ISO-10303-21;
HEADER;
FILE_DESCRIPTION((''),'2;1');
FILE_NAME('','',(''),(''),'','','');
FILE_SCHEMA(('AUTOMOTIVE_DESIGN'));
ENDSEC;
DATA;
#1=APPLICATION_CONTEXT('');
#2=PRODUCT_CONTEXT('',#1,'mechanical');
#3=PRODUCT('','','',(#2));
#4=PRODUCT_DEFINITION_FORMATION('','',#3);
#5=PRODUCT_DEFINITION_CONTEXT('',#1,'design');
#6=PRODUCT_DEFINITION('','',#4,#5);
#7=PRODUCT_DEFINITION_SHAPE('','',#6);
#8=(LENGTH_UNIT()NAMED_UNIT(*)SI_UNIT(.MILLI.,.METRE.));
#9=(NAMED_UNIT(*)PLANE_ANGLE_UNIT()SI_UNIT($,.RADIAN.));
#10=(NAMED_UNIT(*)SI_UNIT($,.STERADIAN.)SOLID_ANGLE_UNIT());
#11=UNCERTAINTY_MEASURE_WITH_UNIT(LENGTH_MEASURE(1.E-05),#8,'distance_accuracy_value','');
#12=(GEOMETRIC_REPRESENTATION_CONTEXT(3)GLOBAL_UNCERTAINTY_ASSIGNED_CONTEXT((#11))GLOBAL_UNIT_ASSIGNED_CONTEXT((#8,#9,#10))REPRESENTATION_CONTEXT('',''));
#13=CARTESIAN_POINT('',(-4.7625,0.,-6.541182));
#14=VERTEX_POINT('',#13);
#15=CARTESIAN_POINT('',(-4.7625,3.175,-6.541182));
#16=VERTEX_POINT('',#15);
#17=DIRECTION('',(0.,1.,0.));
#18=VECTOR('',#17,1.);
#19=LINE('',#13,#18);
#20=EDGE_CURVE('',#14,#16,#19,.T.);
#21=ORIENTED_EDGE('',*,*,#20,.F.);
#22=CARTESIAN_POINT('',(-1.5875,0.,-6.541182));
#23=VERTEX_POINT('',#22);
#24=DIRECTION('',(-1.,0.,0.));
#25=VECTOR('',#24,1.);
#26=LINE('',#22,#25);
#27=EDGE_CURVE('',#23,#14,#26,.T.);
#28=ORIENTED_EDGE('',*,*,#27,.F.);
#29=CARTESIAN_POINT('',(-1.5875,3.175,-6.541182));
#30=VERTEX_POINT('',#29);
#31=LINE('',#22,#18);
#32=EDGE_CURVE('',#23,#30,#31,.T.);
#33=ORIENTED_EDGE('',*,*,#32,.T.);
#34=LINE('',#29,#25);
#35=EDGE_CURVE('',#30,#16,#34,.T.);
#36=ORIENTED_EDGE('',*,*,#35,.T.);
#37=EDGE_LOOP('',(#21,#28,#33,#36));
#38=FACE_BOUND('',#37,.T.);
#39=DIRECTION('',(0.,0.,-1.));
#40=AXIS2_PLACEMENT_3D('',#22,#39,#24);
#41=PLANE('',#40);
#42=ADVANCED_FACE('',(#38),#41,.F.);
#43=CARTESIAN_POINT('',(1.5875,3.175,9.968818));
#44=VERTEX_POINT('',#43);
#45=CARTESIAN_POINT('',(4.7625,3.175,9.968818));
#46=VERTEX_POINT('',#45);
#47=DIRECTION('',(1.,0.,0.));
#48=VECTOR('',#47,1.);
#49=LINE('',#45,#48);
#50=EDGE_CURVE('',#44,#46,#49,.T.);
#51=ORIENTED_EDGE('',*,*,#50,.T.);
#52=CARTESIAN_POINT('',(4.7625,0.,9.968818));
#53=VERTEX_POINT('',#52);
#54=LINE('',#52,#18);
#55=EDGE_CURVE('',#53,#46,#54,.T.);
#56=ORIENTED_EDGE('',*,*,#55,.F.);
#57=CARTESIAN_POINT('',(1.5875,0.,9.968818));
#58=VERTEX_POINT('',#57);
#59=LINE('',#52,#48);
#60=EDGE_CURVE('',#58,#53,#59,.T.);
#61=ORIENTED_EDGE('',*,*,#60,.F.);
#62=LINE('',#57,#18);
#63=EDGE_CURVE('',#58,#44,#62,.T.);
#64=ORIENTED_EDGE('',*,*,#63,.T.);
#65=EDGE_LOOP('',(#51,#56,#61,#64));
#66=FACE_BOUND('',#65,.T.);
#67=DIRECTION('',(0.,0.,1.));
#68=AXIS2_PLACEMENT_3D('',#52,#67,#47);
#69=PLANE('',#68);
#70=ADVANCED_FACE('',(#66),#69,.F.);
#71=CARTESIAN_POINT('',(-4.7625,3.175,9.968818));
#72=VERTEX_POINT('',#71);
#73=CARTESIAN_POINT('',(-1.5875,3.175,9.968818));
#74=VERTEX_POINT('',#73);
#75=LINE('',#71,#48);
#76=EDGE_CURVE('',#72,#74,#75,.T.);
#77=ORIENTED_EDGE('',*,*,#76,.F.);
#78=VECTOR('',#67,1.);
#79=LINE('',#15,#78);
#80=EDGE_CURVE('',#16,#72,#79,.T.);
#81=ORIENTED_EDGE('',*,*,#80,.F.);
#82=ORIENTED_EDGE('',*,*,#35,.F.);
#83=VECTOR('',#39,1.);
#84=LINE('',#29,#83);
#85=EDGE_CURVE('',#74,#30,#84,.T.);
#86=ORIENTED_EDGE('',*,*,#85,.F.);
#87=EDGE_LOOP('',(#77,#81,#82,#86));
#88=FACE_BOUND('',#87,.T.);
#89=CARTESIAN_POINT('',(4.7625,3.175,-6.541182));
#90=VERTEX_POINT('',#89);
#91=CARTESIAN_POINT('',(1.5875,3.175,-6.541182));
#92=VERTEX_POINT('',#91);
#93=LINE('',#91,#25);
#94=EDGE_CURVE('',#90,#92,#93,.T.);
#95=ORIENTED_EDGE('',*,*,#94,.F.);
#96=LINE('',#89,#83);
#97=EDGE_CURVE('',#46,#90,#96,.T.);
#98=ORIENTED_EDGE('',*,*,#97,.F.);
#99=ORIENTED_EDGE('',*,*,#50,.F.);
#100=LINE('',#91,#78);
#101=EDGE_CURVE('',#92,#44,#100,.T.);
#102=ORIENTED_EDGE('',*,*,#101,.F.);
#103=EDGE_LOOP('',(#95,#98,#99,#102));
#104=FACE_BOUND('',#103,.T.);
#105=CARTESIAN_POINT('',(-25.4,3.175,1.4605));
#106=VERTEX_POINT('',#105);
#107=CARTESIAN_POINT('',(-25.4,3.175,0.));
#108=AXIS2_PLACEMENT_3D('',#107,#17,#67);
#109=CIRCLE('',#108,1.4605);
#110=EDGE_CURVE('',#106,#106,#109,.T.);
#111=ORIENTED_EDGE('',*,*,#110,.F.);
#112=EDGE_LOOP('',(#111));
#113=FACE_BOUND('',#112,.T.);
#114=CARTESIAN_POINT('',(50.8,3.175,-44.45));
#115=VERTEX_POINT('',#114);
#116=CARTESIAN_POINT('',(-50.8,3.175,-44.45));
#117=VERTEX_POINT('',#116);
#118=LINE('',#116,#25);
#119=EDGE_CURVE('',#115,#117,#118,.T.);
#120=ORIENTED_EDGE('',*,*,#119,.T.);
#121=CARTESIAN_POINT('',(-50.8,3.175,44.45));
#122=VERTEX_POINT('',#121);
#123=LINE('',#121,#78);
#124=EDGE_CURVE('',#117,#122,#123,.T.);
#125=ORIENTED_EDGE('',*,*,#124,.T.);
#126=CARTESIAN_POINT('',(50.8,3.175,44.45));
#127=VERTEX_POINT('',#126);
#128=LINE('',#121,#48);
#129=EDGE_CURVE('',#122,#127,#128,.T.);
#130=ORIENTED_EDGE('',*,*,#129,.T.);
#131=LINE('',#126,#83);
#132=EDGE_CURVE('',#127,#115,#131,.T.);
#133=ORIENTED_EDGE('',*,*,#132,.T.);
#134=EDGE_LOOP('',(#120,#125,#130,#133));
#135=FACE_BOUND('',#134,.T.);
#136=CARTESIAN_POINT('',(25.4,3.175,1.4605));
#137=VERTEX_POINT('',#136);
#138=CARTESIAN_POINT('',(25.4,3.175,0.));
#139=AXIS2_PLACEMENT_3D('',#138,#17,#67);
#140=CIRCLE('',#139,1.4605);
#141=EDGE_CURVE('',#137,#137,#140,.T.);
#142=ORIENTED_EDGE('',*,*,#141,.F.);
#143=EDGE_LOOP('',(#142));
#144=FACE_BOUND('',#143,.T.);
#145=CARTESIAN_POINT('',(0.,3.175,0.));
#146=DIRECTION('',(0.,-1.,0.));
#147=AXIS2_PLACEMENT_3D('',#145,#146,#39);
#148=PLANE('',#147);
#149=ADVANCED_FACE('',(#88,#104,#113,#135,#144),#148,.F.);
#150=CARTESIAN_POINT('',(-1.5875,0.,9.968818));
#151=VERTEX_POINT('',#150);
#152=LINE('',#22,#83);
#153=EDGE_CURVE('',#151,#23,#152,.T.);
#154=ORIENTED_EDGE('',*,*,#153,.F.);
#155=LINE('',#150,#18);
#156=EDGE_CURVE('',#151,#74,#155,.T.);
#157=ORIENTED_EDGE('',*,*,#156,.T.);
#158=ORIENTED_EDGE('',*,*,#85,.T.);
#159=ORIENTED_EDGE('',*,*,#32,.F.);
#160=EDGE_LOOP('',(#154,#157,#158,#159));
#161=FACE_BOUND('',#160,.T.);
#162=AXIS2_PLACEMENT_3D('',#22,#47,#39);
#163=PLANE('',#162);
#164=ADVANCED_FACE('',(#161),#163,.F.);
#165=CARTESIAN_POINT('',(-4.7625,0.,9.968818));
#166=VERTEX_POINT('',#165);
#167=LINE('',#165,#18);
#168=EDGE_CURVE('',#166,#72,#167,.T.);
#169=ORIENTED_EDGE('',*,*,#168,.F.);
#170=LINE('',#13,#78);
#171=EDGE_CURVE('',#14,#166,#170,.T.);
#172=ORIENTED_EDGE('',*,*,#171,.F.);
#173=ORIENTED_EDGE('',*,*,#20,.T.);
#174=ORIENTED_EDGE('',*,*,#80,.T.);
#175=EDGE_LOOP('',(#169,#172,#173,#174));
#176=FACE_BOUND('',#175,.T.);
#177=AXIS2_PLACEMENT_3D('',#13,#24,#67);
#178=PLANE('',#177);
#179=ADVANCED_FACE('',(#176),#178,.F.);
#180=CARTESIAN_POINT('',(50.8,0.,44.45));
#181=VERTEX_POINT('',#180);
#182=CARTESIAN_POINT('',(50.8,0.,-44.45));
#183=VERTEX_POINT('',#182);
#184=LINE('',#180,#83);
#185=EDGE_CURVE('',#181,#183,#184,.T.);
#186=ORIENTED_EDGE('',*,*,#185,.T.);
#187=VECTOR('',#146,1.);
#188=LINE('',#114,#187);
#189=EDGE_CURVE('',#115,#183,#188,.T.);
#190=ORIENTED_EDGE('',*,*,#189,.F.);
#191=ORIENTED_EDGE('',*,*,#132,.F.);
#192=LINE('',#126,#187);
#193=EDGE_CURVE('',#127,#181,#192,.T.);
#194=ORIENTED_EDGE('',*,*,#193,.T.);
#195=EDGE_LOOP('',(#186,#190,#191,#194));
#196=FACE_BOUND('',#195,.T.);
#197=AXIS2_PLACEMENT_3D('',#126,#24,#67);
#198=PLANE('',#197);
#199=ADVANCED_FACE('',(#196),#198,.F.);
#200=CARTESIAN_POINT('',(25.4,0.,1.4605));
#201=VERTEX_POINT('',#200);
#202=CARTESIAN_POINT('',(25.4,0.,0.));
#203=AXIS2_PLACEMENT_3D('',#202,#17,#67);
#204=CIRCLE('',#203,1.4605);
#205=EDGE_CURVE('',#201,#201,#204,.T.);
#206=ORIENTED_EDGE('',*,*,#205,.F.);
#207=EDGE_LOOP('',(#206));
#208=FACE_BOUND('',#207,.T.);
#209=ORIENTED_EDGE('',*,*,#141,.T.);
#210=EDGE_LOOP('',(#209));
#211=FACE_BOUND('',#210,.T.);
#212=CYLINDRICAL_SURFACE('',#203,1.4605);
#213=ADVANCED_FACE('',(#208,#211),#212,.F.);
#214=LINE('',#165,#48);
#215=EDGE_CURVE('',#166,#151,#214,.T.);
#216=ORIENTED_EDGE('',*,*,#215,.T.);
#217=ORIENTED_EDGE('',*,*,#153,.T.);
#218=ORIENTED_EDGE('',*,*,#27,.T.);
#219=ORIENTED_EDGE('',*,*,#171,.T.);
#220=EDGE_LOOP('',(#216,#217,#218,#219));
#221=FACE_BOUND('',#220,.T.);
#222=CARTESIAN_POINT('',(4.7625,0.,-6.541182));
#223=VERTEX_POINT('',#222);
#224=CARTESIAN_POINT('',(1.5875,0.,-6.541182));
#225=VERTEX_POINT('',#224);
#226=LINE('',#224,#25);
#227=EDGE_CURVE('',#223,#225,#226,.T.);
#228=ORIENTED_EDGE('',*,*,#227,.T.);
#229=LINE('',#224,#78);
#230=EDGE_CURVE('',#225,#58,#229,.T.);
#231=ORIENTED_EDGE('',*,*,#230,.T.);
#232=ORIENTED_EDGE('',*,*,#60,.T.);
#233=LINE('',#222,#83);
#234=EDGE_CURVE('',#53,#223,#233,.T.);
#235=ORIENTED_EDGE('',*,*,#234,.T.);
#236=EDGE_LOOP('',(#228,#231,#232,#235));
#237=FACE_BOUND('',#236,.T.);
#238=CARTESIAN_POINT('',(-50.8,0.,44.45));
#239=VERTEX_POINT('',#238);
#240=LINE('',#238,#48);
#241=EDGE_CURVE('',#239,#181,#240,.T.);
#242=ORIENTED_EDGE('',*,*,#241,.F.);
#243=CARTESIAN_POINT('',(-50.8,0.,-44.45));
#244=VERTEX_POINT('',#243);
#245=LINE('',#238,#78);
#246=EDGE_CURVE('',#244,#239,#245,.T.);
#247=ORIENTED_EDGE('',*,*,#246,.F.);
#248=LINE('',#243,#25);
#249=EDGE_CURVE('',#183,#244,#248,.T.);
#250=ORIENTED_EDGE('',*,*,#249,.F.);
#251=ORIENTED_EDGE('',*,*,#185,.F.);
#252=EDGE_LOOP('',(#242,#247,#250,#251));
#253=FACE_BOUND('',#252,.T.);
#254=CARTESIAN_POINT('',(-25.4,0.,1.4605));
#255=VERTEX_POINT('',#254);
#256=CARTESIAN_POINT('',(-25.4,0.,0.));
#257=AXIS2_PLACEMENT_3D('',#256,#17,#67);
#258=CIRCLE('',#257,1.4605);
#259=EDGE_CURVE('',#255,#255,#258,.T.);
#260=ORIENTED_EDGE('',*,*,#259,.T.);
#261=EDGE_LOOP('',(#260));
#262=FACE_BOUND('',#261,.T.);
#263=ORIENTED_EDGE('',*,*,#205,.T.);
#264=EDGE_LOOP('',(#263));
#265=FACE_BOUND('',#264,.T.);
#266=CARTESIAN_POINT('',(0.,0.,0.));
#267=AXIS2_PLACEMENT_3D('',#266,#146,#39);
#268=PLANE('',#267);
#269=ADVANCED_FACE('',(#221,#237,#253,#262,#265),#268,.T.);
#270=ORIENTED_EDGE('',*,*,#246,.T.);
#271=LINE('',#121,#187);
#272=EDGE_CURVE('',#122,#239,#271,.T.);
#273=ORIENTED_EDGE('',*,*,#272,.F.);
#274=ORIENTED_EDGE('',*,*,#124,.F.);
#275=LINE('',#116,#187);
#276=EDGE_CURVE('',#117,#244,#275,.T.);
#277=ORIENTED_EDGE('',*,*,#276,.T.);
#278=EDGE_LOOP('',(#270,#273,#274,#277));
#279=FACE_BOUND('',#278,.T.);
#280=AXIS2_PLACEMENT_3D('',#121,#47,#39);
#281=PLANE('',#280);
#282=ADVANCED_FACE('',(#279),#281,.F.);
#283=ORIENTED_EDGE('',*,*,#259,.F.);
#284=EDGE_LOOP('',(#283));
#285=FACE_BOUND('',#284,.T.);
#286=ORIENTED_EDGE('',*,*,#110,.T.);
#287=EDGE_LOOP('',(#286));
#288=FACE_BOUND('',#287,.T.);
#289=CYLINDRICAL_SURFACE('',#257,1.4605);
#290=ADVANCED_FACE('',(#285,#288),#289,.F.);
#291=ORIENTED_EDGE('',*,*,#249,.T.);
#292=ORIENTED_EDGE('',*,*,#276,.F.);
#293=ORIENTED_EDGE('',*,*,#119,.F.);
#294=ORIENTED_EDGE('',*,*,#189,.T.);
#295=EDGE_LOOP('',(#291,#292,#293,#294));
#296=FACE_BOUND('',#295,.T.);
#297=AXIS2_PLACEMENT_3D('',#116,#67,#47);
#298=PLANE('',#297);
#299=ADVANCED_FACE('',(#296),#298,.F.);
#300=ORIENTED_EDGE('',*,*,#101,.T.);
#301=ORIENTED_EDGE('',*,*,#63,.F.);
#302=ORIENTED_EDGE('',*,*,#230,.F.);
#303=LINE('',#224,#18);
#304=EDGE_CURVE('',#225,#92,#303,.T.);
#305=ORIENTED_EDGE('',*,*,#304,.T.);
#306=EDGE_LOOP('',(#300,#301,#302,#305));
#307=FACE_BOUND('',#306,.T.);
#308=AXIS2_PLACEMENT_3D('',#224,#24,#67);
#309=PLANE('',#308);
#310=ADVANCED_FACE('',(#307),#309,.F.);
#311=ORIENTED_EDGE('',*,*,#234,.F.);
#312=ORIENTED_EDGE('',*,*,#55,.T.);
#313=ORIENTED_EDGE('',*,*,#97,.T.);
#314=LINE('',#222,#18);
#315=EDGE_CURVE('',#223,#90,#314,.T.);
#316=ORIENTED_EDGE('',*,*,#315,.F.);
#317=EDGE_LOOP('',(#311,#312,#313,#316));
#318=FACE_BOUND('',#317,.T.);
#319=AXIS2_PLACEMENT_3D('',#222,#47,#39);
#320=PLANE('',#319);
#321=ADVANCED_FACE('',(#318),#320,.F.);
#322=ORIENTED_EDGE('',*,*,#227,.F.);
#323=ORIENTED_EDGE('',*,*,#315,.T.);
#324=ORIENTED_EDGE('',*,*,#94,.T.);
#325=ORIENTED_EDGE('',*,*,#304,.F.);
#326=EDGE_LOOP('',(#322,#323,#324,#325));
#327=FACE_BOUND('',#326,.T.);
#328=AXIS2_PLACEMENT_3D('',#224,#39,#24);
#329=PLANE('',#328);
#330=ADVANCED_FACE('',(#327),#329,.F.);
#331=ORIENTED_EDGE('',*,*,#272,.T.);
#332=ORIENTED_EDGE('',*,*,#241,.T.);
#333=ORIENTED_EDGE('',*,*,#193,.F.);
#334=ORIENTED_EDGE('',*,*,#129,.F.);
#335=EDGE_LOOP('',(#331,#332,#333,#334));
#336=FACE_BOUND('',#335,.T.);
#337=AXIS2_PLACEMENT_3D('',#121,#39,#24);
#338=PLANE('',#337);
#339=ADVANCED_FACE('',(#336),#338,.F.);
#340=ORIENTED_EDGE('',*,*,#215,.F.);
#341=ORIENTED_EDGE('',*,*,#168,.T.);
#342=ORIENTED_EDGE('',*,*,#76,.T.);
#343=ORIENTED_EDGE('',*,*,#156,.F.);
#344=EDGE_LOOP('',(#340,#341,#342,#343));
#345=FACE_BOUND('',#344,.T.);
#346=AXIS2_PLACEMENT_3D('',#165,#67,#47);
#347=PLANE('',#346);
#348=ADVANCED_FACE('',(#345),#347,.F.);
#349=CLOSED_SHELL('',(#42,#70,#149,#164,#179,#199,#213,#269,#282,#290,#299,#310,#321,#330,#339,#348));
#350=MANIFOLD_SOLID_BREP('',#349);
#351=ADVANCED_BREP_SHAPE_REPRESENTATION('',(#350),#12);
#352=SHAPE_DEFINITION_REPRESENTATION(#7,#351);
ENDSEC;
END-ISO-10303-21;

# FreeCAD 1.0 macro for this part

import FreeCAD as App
import Part
import Sketcher

V = App.Vector
Q = App.Units.Quantity

doc = App.newDocument("Part")
params = doc.addObject("Spreadsheet::Sheet", "Params")
for row, (alias, value) in enumerate([
    ("sketch1_width", "4 in"),
    ("sketch1_height", "3.5 in"),
    ("pad1_length", "0.125 in"),
    ("sketch2_diameter", "0.115 in"),
    ("sketch3_height", "0.65 in"),
    ("sketch3_width", "0.125 in"),
], start=1):
    params.set(f"A{row}", alias)
    params.set(f"B{row}", "=" + value)
    params.setAlias(f"B{row}", alias)

body = doc.addObject("PartDesign::Body", "Body")

sketch1 = doc.addObject("Sketcher::SketchObject", "Sketch")
body.addObject(sketch1)
sketch1.AttachmentSupport = (doc.XZ_Plane, [""])
sketch1.MapMode = "FlatFace"
sketch1.addGeometry(Part.LineSegment(V(-50.8, -44.45, 0), V(-50.8, 44.45, 0)), False)
sketch1.addGeometry(Part.LineSegment(V(-50.8, 44.45, 0), V(50.8, 44.45, 0)), False)
sketch1.addGeometry(Part.LineSegment(V(50.8, 44.45, 0), V(50.8, -44.45, 0)), False)
sketch1.addGeometry(Part.LineSegment(V(50.8, -44.45, 0), V(-50.8, -44.45, 0)), False)
sketch1.addConstraint(Sketcher.Constraint("Coincident", 0, 2, 1, 1))
sketch1.addConstraint(Sketcher.Constraint("Coincident", 1, 2, 2, 1))
sketch1.addConstraint(Sketcher.Constraint("Coincident", 2, 2, 3, 1))
sketch1.addConstraint(Sketcher.Constraint("Coincident", 3, 2, 0, 1))
sketch1.addConstraint(Sketcher.Constraint("Vertical", 0))
sketch1.addConstraint(Sketcher.Constraint("Horizontal", 1))
sketch1.addConstraint(Sketcher.Constraint("Vertical", 2))
sketch1.addConstraint(Sketcher.Constraint("Horizontal", 3))
sketch1.addConstraint(Sketcher.Constraint("Symmetric", 0, 2, 2, 2, -1, 1))
sketch1.addConstraint(Sketcher.Constraint("DistanceX", 1, 1, 1, 2, Q("4 in")))
sketch1.addConstraint(Sketcher.Constraint("DistanceY", 0, 1, 0, 2, Q("3.5 in")))
sketch1.setExpression("Constraints[9]", "Params.sketch1_width")
sketch1.setExpression("Constraints[10]", "Params.sketch1_height")
pad1 = doc.addObject("PartDesign::Pad", "Pad")
body.addObject(pad1)
pad1.Profile = sketch1
pad1.setExpression("Length", "Params.pad1_length")
pad1.Reversed = True

sketch2 = doc.addObject("Sketcher::SketchObject", "Sketch001")
body.addObject(sketch2)
sketch2.AttachmentSupport = (doc.XZ_Plane, [""])
sketch2.MapMode = "FlatFace"
sketch2.AttachmentOffset = App.Placement(V(0, 0, -0.125 * 25.4), App.Rotation())
sketch2.addGeometry(Part.Circle(V(-25.4, 0, 0), V(0, 0, 1), 1.4605), False)
sketch2.addGeometry(Part.Circle(V(25.4, 0, 0), V(0, 0, 1), 1.4605), False)
sketch2.addConstraint(Sketcher.Constraint("Equal", 0, 1))
sketch2.addConstraint(Sketcher.Constraint("Symmetric", 0, 3, 1, 3, -1, 1))
sketch2.addConstraint(Sketcher.Constraint("PointOnObject", 0, 3, -1))
sketch2.addConstraint(Sketcher.Constraint("Diameter", 0, Q("0.115 in")))
sketch2.addConstraint(Sketcher.Constraint("DistanceX", 0, 3, -1, 1, Q("1 in")))
sketch2.setExpression("Constraints[3]", "Params.sketch2_diameter")
pocket1 = doc.addObject("PartDesign::Pocket", "Pocket")
body.addObject(pocket1)
pocket1.Profile = sketch2
pocket1.Type = "ThroughAll"
pocket1.Reversed = True

sketch3 = doc.addObject("Sketcher::SketchObject", "Sketch002")
body.addObject(sketch3)
sketch3.AttachmentSupport = (doc.XZ_Plane, [""])
sketch3.MapMode = "FlatFace"
sketch3.AttachmentOffset = App.Placement(V(0, 0, -0.125 * 25.4), App.Rotation())
sketch3.addGeometry(Part.LineSegment(V(-4.7625, -6.541182, 0), V(-4.7625, 9.968818, 0)), False)
sketch3.addGeometry(Part.LineSegment(V(-4.7625, 9.968818, 0), V(-1.5875, 9.968818, 0)), False)
sketch3.addGeometry(Part.LineSegment(V(-1.5875, 9.968818, 0), V(-1.5875, -6.541182, 0)), False)
sketch3.addGeometry(Part.LineSegment(V(-1.5875, -6.541182, 0), V(-4.7625, -6.541182, 0)), False)
sketch3.addGeometry(Part.LineSegment(V(1.5875, -6.541182, 0), V(1.5875, 9.968818, 0)), False)
sketch3.addGeometry(Part.LineSegment(V(1.5875, 9.968818, 0), V(4.7625, 9.968818, 0)), False)
sketch3.addGeometry(Part.LineSegment(V(4.7625, 9.968818, 0), V(4.7625, -6.541182, 0)), False)
sketch3.addGeometry(Part.LineSegment(V(4.7625, -6.541182, 0), V(1.5875, -6.541182, 0)), False)
sketch3.addConstraint(Sketcher.Constraint("Coincident", 0, 2, 1, 1))
sketch3.addConstraint(Sketcher.Constraint("Coincident", 1, 2, 2, 1))
sketch3.addConstraint(Sketcher.Constraint("Coincident", 2, 2, 3, 1))
sketch3.addConstraint(Sketcher.Constraint("Coincident", 3, 2, 0, 1))
sketch3.addConstraint(Sketcher.Constraint("Coincident", 4, 2, 5, 1))
sketch3.addConstraint(Sketcher.Constraint("Coincident", 5, 2, 6, 1))
sketch3.addConstraint(Sketcher.Constraint("Coincident", 6, 2, 7, 1))
sketch3.addConstraint(Sketcher.Constraint("Coincident", 7, 2, 4, 1))
sketch3.addConstraint(Sketcher.Constraint("Vertical", 0))
sketch3.addConstraint(Sketcher.Constraint("Horizontal", 1))
sketch3.addConstraint(Sketcher.Constraint("Vertical", 2))
sketch3.addConstraint(Sketcher.Constraint("Horizontal", 3))
sketch3.addConstraint(Sketcher.Constraint("Vertical", 4))
sketch3.addConstraint(Sketcher.Constraint("Horizontal", 5))
sketch3.addConstraint(Sketcher.Constraint("Vertical", 6))
sketch3.addConstraint(Sketcher.Constraint("Horizontal", 7))
sketch3.addConstraint(Sketcher.Constraint("Symmetric", 1, 2, 4, 2, -2))
sketch3.addConstraint(Sketcher.Constraint("Symmetric", 3, 2, 6, 2, -2))
sketch3.addConstraint(Sketcher.Constraint("DistanceY", 0, 1, 0, 2, Q("0.65 in")))
sketch3.addConstraint(Sketcher.Constraint("DistanceX", 1, 1, 1, 2, Q("0.125 in")))
sketch3.addConstraint(Sketcher.Constraint("DistanceX", 0, 2, 4, 2, Q("0.25 in")))
sketch3.addConstraint(Sketcher.Constraint("DistanceY", -1, 1, 0, 2, 9.968818))
sketch3.setExpression("Constraints[18]", "Params.sketch3_height")
sketch3.setExpression("Constraints[19]", "Params.sketch3_width")
pocket2 = doc.addObject("PartDesign::Pocket", "Pocket001")
body.addObject(pocket2)
pocket2.Profile = sketch3
pocket2.Type = "ThroughAll"
pocket2.Reversed = True

doc.recompute()
